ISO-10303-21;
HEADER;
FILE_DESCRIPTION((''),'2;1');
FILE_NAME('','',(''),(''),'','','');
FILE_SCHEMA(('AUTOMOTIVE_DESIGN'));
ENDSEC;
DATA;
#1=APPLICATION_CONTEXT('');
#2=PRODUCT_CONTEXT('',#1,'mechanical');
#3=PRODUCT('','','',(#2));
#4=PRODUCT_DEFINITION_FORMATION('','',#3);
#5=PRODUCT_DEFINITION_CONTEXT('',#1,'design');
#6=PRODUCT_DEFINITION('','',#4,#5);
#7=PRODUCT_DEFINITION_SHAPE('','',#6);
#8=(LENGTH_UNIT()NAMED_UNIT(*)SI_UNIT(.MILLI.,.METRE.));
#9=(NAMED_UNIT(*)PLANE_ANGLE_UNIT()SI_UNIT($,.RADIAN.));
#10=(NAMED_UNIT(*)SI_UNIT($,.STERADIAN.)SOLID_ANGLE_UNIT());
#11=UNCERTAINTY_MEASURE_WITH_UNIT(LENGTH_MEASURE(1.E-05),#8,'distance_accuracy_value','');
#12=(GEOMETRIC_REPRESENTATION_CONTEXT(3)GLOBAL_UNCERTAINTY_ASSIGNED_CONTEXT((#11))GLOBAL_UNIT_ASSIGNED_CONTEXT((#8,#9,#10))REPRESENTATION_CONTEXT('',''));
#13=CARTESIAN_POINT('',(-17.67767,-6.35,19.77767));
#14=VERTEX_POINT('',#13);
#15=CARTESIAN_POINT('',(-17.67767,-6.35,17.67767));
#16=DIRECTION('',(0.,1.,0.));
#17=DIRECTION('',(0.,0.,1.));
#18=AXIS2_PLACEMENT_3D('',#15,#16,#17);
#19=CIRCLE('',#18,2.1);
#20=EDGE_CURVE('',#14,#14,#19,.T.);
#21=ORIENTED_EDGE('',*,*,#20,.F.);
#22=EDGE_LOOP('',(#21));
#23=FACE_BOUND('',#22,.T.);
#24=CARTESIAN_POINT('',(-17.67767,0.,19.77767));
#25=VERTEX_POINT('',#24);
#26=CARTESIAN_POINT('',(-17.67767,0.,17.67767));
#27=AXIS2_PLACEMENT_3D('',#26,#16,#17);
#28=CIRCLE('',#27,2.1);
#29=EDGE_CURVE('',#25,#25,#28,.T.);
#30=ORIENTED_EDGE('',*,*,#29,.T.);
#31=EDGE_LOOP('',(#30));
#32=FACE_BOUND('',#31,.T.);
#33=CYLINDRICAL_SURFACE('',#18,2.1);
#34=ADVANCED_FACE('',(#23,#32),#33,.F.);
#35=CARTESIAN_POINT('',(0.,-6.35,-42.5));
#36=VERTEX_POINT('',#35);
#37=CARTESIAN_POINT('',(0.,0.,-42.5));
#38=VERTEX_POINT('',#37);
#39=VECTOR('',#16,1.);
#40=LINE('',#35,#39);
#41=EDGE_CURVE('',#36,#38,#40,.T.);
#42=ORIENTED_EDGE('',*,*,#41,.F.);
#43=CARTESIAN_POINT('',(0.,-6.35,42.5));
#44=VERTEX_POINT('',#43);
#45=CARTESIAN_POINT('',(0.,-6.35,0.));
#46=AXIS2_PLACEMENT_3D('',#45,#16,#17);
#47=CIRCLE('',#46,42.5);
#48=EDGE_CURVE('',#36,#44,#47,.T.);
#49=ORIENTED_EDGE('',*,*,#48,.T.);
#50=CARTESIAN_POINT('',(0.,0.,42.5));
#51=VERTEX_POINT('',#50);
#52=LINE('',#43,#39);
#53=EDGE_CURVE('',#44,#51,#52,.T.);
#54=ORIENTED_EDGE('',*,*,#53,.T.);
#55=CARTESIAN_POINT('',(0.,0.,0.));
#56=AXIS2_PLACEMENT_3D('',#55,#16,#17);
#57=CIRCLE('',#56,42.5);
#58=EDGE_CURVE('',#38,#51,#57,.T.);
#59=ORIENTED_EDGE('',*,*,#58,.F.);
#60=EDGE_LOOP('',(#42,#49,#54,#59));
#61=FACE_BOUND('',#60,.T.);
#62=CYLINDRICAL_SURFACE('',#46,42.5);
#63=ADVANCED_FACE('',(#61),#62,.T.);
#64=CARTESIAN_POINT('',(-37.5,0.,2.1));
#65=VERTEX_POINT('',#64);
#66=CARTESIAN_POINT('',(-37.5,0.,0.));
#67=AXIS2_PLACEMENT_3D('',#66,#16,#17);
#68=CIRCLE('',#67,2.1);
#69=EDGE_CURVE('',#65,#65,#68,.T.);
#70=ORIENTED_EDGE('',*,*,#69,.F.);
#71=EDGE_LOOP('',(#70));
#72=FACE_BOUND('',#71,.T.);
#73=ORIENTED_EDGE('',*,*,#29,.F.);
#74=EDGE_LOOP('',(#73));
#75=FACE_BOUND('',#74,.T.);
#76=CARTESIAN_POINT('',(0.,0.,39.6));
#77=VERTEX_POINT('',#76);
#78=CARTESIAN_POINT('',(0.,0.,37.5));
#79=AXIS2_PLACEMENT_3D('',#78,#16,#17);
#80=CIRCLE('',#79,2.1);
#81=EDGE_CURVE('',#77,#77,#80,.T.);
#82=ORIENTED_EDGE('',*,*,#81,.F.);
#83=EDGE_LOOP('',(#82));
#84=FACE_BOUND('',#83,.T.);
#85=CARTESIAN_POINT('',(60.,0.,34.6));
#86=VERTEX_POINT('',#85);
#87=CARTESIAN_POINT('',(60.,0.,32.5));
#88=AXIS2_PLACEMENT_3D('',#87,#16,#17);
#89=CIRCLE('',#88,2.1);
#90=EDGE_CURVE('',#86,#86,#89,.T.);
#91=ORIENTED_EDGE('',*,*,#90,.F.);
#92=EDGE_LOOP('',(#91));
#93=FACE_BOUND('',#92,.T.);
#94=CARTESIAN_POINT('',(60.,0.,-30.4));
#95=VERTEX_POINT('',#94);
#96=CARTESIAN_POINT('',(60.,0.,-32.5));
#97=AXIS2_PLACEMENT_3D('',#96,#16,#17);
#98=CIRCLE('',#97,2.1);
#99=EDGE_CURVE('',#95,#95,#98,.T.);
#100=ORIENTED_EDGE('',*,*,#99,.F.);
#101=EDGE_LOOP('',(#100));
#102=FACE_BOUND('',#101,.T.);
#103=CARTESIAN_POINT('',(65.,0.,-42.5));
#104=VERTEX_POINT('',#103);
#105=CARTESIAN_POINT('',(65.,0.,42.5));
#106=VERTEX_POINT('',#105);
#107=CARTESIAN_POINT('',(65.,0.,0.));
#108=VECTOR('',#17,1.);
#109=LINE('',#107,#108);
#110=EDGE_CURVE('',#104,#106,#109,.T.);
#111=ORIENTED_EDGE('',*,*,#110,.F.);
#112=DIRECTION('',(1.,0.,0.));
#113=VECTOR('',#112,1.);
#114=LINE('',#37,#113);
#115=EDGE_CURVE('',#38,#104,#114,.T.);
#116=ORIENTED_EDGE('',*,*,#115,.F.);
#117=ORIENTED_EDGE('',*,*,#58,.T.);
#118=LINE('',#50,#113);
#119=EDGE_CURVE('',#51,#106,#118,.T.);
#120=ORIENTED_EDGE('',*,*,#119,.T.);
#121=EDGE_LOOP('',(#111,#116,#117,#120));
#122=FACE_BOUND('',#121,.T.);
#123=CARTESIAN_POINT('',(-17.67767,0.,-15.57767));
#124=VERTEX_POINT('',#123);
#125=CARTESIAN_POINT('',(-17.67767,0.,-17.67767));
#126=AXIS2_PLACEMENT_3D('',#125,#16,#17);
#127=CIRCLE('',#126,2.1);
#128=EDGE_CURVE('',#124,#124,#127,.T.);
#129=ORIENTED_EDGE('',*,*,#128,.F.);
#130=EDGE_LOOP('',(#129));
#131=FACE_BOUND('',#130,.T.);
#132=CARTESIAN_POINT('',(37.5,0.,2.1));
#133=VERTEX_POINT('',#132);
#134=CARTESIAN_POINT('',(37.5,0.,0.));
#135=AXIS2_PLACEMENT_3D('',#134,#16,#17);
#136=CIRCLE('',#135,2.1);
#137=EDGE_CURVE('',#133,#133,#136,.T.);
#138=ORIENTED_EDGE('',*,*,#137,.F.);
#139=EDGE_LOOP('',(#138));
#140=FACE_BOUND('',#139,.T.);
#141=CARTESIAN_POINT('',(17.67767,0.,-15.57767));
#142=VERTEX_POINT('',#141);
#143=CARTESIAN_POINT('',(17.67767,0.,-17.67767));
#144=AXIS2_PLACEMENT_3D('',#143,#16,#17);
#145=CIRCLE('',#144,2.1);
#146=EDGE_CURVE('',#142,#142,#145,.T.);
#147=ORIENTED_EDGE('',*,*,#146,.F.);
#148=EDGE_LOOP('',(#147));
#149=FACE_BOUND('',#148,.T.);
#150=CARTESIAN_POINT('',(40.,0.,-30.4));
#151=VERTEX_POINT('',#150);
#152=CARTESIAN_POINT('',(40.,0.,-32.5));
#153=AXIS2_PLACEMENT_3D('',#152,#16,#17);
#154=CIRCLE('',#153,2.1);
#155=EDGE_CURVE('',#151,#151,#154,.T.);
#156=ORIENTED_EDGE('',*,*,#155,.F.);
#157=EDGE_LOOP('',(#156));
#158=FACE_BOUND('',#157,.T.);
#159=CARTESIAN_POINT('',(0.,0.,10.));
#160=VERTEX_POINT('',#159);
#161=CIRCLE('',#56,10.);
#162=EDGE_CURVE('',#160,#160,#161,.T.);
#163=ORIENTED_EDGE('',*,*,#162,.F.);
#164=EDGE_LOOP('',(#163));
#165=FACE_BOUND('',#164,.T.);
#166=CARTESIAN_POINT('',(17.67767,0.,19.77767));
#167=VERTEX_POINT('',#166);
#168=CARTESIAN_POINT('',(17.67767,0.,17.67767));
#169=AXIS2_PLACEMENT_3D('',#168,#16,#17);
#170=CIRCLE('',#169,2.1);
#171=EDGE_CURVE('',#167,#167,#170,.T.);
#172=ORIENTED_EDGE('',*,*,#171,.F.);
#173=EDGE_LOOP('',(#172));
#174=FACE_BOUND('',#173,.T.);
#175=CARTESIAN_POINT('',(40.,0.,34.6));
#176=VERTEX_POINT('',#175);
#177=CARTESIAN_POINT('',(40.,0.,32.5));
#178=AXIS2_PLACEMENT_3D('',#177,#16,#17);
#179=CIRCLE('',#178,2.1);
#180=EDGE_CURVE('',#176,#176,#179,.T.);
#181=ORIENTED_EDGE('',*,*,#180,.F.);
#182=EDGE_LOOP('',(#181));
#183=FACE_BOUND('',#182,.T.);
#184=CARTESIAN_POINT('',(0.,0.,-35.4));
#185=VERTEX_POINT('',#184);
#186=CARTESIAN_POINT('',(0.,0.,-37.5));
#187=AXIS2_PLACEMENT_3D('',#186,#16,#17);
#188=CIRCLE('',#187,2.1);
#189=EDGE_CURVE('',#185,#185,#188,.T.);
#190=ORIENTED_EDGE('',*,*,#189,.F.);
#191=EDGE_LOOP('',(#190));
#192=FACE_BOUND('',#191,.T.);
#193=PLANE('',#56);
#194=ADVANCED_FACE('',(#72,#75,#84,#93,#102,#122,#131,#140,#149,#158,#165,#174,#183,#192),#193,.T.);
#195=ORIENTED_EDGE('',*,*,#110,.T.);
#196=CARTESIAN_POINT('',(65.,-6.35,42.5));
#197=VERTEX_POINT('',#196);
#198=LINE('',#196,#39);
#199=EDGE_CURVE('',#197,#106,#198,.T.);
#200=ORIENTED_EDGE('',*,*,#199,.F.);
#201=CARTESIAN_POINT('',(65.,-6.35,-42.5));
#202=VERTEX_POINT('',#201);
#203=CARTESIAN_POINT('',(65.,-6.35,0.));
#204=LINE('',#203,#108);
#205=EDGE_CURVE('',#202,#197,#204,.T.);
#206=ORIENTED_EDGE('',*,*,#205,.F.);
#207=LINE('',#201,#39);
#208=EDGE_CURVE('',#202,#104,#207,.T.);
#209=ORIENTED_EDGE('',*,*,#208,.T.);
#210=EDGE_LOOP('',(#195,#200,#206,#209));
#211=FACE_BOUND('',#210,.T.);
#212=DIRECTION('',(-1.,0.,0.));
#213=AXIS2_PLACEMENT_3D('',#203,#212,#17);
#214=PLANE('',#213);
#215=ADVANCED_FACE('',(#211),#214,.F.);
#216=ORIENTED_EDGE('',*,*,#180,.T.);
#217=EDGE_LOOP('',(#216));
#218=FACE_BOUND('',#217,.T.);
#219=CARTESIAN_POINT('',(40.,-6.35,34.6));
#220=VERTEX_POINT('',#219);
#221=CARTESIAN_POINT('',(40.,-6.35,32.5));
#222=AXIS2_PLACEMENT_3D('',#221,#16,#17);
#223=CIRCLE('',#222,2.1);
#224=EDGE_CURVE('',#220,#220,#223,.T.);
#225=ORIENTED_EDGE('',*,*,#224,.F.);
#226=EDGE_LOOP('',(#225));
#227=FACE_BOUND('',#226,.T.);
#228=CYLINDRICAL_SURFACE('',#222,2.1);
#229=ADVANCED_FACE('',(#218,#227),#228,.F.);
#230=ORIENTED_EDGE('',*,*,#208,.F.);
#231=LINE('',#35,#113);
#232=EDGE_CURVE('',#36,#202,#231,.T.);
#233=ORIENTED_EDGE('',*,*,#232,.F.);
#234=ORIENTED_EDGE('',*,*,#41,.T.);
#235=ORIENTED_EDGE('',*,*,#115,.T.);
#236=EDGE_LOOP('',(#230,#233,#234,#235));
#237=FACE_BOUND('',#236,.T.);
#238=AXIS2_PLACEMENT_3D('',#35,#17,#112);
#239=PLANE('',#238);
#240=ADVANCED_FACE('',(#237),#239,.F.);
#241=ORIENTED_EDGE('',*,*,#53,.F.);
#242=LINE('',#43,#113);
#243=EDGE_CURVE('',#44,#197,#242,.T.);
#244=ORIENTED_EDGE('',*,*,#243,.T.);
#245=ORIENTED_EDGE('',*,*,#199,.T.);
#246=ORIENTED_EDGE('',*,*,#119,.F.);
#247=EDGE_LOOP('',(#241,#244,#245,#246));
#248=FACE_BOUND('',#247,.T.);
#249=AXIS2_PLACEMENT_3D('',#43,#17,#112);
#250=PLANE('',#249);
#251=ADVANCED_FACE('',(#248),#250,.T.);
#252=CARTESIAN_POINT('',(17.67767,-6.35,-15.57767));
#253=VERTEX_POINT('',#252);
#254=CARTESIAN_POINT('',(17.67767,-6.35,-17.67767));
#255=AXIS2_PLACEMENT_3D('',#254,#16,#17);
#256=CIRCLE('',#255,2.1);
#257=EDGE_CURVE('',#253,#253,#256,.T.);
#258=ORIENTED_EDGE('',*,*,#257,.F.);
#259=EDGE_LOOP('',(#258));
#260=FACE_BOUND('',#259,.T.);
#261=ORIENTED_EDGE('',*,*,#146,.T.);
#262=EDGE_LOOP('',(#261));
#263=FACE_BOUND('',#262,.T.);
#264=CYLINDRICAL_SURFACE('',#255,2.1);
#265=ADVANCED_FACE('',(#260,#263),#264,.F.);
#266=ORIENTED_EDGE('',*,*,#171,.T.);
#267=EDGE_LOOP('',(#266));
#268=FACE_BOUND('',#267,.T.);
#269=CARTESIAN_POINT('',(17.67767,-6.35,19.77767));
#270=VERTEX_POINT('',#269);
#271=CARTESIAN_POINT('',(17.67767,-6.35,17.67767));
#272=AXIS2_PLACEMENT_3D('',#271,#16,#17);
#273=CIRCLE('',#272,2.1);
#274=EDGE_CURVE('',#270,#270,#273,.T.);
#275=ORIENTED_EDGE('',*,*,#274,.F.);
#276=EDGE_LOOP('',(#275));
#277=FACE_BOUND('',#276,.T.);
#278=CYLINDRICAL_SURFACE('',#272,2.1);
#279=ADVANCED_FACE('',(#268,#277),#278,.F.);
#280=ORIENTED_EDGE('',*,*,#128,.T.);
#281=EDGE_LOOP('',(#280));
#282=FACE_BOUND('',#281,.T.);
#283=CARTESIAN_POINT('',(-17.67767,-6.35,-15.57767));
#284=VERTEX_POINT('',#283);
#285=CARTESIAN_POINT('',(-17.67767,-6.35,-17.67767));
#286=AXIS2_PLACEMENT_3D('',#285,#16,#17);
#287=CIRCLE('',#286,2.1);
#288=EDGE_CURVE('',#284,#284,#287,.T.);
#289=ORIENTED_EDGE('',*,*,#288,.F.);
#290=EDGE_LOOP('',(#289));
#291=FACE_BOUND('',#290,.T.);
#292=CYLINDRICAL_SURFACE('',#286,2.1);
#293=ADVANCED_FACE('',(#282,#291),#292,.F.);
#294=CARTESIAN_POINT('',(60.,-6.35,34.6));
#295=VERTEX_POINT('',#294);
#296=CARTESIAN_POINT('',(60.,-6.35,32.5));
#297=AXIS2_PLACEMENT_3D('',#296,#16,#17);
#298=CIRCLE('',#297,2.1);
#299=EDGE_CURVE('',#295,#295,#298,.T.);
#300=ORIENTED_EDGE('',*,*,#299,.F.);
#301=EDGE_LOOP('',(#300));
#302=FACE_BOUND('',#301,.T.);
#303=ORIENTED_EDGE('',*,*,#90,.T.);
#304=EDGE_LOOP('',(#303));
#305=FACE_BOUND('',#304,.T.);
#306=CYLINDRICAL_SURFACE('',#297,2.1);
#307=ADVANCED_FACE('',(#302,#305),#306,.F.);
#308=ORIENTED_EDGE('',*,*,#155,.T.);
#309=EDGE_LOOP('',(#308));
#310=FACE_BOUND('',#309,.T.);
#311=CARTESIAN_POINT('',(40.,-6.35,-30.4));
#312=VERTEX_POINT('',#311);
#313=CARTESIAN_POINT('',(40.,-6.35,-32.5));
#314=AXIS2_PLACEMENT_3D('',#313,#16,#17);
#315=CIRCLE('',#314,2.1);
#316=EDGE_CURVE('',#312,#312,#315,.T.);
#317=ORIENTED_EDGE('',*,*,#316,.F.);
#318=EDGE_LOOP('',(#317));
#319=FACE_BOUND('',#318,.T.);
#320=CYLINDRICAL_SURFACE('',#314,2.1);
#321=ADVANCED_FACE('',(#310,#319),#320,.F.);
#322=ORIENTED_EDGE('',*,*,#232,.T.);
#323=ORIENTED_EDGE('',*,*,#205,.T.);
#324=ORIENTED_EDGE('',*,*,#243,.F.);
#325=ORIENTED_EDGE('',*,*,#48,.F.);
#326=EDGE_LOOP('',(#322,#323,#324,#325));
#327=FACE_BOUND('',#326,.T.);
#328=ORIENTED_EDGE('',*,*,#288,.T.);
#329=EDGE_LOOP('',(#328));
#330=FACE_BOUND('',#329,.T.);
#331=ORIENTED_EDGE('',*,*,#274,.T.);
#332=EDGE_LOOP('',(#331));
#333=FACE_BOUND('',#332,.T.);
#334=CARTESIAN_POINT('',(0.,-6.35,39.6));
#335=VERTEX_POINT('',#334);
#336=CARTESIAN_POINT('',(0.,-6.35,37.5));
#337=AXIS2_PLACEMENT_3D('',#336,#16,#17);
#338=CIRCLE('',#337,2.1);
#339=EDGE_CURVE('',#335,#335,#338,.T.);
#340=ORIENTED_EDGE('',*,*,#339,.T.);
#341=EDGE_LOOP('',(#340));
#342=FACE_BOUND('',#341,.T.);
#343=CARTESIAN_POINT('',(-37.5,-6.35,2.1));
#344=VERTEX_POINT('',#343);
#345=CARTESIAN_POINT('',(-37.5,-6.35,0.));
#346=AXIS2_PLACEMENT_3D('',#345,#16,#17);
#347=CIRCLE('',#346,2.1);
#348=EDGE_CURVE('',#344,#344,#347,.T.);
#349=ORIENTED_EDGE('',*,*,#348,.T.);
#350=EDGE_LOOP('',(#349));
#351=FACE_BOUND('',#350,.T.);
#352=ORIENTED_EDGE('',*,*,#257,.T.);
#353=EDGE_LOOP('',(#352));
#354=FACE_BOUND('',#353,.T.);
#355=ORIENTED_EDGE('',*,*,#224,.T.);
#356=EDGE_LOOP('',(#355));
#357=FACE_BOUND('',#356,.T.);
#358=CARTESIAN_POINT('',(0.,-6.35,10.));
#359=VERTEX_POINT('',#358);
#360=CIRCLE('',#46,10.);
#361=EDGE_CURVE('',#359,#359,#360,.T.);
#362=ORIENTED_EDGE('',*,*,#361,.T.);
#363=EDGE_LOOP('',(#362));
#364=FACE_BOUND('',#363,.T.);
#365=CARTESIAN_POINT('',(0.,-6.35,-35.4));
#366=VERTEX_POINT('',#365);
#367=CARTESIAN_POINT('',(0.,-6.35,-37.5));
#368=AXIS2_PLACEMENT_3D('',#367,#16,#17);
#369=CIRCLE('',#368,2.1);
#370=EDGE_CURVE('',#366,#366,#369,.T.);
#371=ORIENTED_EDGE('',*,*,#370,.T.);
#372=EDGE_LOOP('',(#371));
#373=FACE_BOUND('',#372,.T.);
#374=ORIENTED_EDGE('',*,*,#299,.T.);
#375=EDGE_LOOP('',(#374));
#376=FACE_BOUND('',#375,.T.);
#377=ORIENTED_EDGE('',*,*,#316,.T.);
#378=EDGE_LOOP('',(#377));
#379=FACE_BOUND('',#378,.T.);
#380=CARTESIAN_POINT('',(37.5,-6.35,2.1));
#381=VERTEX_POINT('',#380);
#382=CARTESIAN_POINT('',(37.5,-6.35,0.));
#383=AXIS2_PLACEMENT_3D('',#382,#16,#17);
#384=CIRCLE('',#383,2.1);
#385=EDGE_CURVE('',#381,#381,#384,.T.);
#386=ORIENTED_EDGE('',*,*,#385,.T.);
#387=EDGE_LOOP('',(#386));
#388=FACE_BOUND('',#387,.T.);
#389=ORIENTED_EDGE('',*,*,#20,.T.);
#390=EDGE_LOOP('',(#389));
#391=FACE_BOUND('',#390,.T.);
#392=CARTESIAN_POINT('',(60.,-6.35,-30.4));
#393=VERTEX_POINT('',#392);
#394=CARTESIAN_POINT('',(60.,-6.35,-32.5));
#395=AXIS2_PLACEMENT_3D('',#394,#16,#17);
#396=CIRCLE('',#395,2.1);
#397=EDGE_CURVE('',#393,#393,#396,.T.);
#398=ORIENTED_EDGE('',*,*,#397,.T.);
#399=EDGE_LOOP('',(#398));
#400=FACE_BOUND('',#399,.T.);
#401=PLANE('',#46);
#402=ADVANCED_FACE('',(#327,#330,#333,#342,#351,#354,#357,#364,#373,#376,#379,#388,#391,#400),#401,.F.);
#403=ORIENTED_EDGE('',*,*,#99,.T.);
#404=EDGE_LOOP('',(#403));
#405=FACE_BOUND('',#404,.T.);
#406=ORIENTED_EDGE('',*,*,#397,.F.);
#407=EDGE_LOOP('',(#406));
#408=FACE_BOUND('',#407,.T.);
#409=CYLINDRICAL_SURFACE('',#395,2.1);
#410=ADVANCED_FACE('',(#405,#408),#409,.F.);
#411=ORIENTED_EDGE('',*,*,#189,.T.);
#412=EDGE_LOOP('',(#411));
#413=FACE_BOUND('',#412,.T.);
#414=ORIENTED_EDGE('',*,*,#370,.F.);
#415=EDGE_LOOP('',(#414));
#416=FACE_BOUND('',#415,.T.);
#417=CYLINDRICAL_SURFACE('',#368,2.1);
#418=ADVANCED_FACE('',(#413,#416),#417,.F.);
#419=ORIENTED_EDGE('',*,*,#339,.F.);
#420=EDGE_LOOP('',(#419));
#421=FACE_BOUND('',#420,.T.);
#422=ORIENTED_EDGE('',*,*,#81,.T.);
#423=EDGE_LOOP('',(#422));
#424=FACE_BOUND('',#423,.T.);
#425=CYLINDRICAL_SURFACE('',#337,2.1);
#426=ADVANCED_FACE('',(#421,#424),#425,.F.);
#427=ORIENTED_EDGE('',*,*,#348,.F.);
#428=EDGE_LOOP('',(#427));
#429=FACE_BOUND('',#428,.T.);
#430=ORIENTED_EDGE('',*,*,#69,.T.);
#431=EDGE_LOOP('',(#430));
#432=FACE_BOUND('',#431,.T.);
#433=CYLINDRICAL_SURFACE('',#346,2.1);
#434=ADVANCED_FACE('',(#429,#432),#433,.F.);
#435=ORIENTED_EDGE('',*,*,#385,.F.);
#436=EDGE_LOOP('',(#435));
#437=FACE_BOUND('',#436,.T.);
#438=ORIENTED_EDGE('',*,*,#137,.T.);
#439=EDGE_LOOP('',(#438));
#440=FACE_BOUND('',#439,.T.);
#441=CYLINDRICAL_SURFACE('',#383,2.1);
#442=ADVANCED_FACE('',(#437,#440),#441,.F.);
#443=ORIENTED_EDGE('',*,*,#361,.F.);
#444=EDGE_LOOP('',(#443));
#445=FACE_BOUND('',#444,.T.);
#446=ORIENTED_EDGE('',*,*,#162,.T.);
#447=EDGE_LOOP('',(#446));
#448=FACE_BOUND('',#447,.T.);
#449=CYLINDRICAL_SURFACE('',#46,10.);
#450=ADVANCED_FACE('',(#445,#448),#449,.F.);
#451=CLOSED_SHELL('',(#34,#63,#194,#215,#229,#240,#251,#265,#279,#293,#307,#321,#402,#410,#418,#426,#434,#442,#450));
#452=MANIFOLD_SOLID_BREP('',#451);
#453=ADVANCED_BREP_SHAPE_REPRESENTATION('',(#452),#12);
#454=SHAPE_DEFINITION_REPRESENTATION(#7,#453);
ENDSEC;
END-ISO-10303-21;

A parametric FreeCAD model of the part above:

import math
import FreeCAD as App
import Part
import Sketcher
Q = App.Units.Quantity

doc = App.newDocument("Part")
body = doc.addObject("PartDesign::Body", "Body")

sketch1 = body.newObject("Sketcher::SketchObject", "Sketch")
sketch1.AttachmentSupport = (doc.getObject("XZ_Plane"), [""])
sketch1.MapMode = "FlatFace"
sketch1.addGeometry([
    Part.LineSegment(App.Vector(65, -42.5, 0), App.Vector(0, -42.5, 0)),
    Part.ArcOfCircle(Part.Circle(App.Vector(0, 0, 0), App.Vector(0, 0, 1), 42.5), math.radians(90), math.radians(270)),
    Part.LineSegment(App.Vector(0, 42.5, 0), App.Vector(65, 42.5, 0)),
    Part.LineSegment(App.Vector(65, 42.5, 0), App.Vector(65, -42.5, 0)),
    Part.Circle(App.Vector(0, 37.5, 0), App.Vector(0, 0, 1), 2.1),
    Part.Circle(App.Vector(-17.7, 17.7, 0), App.Vector(0, 0, 1), 2.1),
    Part.Circle(App.Vector(40, 32.5, 0), App.Vector(0, 0, 1), 2.1),
    Part.Circle(App.Vector(60, 32.5, 0), App.Vector(0, 0, 1), 2.1),
    Part.Circle(App.Vector(17.7, 17.7, 0), App.Vector(0, 0, 1), 2.1),
    Part.Circle(App.Vector(-37.5, 0, 0), App.Vector(0, 0, 1), 2.1),
    Part.Circle(App.Vector(-17.7, -17.7, 0), App.Vector(0, 0, 1), 2.1),
    Part.Circle(App.Vector(0, 0, 0), App.Vector(0, 0, 1), 10),
    Part.Circle(App.Vector(0, -37.5, 0), App.Vector(0, 0, 1), 2.1),
    Part.Circle(App.Vector(17.7, -17.7, 0), App.Vector(0, 0, 1), 2.1),
    Part.Circle(App.Vector(37.5, 0, 0), App.Vector(0, 0, 1), 2.1),
    Part.Circle(App.Vector(40, -32.5, 0), App.Vector(0, 0, 1), 2.1),
    Part.Circle(App.Vector(60, -32.5, 0), App.Vector(0, 0, 1), 2.1),
], False)
sketch1.addConstraint([
    Sketcher.Constraint("Tangent", 0, 2, 1, 2),
    Sketcher.Constraint("Tangent", 1, 1, 2, 1),
    Sketcher.Constraint("Coincident", 2, 2, 3, 1),
    Sketcher.Constraint("Coincident", 3, 2, 0, 1),
    Sketcher.Constraint("Horizontal", 0),
    Sketcher.Constraint("Horizontal", 2),
    Sketcher.Constraint("Vertical", 3),
    Sketcher.Constraint("Coincident", 1, 3, -1, 1),
    Sketcher.Constraint("Coincident", 11, 3, -1, 1),
    Sketcher.Constraint("Equal", 4, 5),
    Sketcher.Constraint("Equal", 5, 6),
    Sketcher.Constraint("Equal", 6, 7),
    Sketcher.Constraint("Equal", 7, 8),
    Sketcher.Constraint("Equal", 8, 9),
    Sketcher.Constraint("Equal", 9, 10),
    Sketcher.Constraint("Equal", 10, 12),
    Sketcher.Constraint("Equal", 12, 13),
    Sketcher.Constraint("Equal", 13, 14),
    Sketcher.Constraint("Equal", 14, 15),
    Sketcher.Constraint("Equal", 15, 16),
    Sketcher.Constraint("Symmetric", 8, 3, 10, 3, -1, 1),
    Sketcher.Constraint("Symmetric", 4, 3, 12, 3, -1, 1),
    Sketcher.Constraint("Symmetric", 5, 3, 13, 3, -1, 1),
    Sketcher.Constraint("Symmetric", 9, 3, 14, 3, -1, 1),
    Sketcher.Constraint("Symmetric", 5, 3, 8, 3, -2),
    Sketcher.Constraint("Symmetric", 6, 3, 15, 3, -1),
    Sketcher.Constraint("Symmetric", 7, 3, 16, 3, -1),
    Sketcher.Constraint("PointOnObject", 4, 3, -2),
    Sketcher.Constraint("PointOnObject", 9, 3, -1),
    Sketcher.Constraint("Horizontal", 6, 3, 7, 3),
    Sketcher.Constraint("Diameter", 11, Q("20 mm")),
    Sketcher.Constraint("Diameter", 4, Q("4.2 mm")),
    Sketcher.Constraint("Radius", 1, Q("42.5 mm")),
    Sketcher.Constraint("DistanceX", 0, 2, 0, 1, Q("65 mm")),
    Sketcher.Constraint("DistanceX", -1, 1, 6, 3, Q("40 mm")),
    Sketcher.Constraint("DistanceX", -1, 1, 7, 3, Q("60 mm")),
    Sketcher.Constraint("DistanceY", 6, 3, 4, 3, Q("5 mm")),
    Sketcher.Constraint("DistanceY", 16, 3, 7, 3, Q("65 mm")),
    Sketcher.Constraint("DistanceX", 9, 3, -1, 1, Q("37.5 mm")),
    Sketcher.Constraint("DistanceX", 5, 3, -1, 1, Q("17.67767 mm")),
    Sketcher.Constraint("DistanceY", -1, 1, 5, 3, Q("17.67767 mm")),
])
pad1 = body.newObject("PartDesign::Pad", "Pad")
pad1.Profile = sketch1
pad1.Length = 6.35

doc.recompute()
